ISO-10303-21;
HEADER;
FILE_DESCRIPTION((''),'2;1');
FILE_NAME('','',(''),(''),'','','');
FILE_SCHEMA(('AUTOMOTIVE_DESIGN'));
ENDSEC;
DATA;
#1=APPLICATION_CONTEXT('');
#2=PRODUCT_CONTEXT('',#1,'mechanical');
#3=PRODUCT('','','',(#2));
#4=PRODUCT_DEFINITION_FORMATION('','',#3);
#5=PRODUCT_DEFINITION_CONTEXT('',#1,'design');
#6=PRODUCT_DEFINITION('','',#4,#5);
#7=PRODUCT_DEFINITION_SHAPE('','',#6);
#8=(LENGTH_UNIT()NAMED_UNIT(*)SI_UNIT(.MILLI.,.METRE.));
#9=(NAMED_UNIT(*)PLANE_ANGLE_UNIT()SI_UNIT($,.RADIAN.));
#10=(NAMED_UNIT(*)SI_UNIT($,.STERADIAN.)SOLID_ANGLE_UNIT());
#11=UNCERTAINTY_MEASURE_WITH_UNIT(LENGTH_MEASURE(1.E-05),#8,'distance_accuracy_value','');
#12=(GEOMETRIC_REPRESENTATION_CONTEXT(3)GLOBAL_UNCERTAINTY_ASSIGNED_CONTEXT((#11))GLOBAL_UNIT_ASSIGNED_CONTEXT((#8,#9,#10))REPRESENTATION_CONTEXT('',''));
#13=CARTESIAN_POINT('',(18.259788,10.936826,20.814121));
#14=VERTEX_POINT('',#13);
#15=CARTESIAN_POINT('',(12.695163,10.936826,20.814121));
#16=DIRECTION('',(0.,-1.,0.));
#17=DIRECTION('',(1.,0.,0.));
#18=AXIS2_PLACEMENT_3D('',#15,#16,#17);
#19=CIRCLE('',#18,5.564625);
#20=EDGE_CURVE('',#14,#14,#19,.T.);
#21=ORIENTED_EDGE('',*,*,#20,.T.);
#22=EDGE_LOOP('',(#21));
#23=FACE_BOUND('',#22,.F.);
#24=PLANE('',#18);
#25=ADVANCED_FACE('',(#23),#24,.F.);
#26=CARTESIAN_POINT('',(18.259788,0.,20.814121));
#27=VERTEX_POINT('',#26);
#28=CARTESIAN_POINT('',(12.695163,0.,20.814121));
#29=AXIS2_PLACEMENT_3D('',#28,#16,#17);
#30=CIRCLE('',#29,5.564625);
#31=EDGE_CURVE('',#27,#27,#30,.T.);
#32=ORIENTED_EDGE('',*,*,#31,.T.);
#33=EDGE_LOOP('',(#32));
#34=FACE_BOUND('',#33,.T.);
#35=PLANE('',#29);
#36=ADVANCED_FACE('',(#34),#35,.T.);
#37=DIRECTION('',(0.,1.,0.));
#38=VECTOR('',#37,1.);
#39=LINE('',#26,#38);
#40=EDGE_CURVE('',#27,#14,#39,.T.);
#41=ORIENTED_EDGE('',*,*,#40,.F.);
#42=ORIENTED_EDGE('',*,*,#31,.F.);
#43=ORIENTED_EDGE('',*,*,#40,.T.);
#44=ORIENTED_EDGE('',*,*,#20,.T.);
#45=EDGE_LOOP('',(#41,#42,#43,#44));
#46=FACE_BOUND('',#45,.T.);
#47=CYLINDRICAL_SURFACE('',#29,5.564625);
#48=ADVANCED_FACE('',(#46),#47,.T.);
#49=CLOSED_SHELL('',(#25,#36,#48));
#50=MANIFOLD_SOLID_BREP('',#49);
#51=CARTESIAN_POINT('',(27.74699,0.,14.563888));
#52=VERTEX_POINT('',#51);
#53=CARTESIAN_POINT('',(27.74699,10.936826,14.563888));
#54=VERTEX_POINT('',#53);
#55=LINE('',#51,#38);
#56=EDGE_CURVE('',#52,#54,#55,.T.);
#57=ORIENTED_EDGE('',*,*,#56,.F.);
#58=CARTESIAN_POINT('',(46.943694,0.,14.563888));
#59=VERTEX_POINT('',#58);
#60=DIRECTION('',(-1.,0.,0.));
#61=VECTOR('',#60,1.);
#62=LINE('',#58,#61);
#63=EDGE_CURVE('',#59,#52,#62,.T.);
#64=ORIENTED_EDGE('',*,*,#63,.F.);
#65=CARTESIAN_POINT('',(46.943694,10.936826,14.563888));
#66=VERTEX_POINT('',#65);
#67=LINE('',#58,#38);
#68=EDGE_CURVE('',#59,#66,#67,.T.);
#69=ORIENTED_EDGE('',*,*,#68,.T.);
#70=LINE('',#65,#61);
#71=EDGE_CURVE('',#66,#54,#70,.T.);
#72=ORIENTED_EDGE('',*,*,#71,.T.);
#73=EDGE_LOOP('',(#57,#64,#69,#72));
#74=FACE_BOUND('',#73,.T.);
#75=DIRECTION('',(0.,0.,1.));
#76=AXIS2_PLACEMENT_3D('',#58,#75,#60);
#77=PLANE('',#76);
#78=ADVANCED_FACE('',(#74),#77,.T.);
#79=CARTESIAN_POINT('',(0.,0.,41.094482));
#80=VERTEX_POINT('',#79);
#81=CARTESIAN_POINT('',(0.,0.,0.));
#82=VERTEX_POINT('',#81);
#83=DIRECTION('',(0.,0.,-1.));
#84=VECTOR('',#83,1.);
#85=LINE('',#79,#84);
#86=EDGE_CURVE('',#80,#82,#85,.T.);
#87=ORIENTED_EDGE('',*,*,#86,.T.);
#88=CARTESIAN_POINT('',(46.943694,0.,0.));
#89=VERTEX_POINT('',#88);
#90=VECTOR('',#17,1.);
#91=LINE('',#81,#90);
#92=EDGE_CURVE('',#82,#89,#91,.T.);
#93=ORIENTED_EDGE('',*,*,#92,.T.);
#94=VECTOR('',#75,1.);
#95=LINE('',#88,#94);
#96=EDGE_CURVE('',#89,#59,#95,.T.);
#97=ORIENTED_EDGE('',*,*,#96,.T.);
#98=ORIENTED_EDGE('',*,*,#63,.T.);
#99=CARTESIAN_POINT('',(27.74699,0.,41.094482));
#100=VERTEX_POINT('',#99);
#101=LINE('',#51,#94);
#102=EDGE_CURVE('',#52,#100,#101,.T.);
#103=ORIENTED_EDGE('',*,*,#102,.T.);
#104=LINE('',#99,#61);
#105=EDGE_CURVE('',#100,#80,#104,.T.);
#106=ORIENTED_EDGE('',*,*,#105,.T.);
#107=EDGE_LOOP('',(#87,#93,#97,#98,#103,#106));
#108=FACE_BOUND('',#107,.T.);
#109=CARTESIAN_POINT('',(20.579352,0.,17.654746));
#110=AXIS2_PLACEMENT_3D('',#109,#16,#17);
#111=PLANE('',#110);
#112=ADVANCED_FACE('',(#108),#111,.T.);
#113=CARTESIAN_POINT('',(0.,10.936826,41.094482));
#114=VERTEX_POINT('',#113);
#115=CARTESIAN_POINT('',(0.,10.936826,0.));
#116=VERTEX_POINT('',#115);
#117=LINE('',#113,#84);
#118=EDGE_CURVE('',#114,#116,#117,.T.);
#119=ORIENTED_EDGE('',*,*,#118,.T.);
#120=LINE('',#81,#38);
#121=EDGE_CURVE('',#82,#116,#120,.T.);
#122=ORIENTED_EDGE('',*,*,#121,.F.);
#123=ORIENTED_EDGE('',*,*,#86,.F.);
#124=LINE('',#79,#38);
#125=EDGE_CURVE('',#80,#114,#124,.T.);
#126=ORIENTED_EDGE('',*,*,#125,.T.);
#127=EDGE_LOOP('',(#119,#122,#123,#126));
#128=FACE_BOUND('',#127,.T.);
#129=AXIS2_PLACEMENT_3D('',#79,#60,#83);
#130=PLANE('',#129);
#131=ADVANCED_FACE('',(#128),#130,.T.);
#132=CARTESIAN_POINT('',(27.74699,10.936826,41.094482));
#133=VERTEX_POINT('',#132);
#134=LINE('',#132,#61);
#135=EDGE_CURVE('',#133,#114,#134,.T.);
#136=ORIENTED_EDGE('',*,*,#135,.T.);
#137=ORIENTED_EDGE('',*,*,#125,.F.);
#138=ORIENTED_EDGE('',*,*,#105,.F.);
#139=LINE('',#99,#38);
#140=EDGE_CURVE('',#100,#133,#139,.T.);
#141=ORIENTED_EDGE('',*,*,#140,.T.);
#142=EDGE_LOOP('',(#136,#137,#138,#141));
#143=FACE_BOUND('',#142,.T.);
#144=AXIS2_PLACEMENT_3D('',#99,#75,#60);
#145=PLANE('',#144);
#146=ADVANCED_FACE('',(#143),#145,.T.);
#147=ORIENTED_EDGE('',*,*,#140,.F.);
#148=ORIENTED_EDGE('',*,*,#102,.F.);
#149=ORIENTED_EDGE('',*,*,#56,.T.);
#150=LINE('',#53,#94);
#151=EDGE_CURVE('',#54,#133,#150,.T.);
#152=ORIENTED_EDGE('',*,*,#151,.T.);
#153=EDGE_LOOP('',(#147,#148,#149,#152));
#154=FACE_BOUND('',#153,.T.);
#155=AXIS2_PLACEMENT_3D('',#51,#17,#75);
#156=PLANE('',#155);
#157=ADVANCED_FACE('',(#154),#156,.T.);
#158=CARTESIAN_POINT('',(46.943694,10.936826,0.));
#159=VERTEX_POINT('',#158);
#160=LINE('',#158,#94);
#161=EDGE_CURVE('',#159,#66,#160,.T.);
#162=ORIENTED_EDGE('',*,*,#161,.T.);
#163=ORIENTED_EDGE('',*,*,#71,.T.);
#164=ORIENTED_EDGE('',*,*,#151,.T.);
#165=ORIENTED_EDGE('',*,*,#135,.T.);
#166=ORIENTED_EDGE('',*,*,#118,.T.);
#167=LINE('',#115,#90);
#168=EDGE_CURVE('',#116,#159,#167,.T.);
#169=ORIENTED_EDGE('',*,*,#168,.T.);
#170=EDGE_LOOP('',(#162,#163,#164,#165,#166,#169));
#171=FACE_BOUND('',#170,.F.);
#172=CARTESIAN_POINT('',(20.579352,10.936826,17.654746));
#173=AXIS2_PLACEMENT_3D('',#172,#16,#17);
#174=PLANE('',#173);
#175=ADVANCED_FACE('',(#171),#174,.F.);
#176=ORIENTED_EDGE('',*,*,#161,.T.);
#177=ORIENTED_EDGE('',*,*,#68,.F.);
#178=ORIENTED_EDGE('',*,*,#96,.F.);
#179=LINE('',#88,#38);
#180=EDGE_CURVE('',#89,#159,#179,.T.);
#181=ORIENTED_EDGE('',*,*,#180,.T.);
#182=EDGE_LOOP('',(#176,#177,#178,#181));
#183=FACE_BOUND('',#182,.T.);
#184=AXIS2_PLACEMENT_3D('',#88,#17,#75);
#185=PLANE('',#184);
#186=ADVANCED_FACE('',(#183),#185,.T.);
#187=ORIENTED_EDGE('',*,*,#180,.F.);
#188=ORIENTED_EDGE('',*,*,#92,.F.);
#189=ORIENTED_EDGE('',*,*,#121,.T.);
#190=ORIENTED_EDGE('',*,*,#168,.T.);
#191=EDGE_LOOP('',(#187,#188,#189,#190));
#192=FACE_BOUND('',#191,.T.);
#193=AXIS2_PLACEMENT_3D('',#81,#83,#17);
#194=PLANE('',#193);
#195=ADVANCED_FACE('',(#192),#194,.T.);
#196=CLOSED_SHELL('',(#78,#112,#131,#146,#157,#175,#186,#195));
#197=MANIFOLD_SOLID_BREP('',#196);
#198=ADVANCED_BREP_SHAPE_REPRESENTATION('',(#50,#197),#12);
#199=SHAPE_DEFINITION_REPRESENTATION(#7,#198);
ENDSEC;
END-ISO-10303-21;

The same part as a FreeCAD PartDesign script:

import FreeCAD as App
import Part
import Sketcher

V = App.Vector


def add_polygon(sketch, points):
    """Adds a closed chain of lines whose ends are joined by coincident constraints."""
    first, n = sketch.GeometryCount, len(points)
    for a, b in zip(points, points[1:] + points[:1]):
        sketch.addGeometry(Part.LineSegment(App.Vector(*a, 0), App.Vector(*b, 0)), False)
    for i in range(n):
        sketch.addConstraint(Sketcher.Constraint("Coincident", first + i, 2, first + (i + 1) % n, 1))

doc = App.newDocument("Part")
body = doc.addObject("PartDesign::Body", "Body")

sketch1 = body.newObject("Sketcher::SketchObject", "Sketch")
sketch1.AttachmentSupport = (doc.getObject("XZ_Plane"), [""])
sketch1.MapMode = "FlatFace"
add_polygon(sketch1, [(0, 41), (0, 0), (47, 0), (47, 15), (28, 15), (28, 41)])
sketch1.addConstraint([
    Sketcher.Constraint("Vertical", 0),
    Sketcher.Constraint("Horizontal", 1),
    Sketcher.Constraint("Vertical", 2),
    Sketcher.Constraint("Horizontal", 3),
    Sketcher.Constraint("Vertical", 4),
    Sketcher.Constraint("Horizontal", 5),
    Sketcher.Constraint("Coincident", 0, 2, -1, 1),
    Sketcher.Constraint("DistanceX", 5, 2, 5, 1, 27.74699),
    Sketcher.Constraint("DistanceY", 0, 2, 0, 1, 41.094482),
    Sketcher.Constraint("DistanceY", 2, 1, 2, 2, 14.563888),
    Sketcher.Constraint("DistanceX", 1, 1, 1, 2, 46.943694),
])
pad1 = body.newObject("PartDesign::Pad", "Pad")
pad1.Profile = sketch1
pad1.Length = 10.936826
pad1.Reversed = True
body2 = doc.addObject("PartDesign::Body", "Body001")

sketch2 = body2.newObject("Sketcher::SketchObject", "Sketch001")
sketch2.AttachmentSupport = (doc.getObject("XZ_Plane001"), [""])
sketch2.MapMode = "FlatFace"
sketch2.addGeometry(Part.Circle(V(13, 21, 0), V(0, 0, 1), 6), False)
sketch2.addConstraint([
    Sketcher.Constraint("Diameter", 0, 11.12925),
    Sketcher.Constraint("DistanceY", -1, 1, 0, 3, 20.814121),
    Sketcher.Constraint("DistanceX", -1, 1, 0, 3, 12.695163),
])
pad2 = body2.newObject("PartDesign::Pad", "Pad001")
pad2.Profile = sketch2
pad2.Length = 10.936826
pad2.Reversed = True

doc.recompute()
